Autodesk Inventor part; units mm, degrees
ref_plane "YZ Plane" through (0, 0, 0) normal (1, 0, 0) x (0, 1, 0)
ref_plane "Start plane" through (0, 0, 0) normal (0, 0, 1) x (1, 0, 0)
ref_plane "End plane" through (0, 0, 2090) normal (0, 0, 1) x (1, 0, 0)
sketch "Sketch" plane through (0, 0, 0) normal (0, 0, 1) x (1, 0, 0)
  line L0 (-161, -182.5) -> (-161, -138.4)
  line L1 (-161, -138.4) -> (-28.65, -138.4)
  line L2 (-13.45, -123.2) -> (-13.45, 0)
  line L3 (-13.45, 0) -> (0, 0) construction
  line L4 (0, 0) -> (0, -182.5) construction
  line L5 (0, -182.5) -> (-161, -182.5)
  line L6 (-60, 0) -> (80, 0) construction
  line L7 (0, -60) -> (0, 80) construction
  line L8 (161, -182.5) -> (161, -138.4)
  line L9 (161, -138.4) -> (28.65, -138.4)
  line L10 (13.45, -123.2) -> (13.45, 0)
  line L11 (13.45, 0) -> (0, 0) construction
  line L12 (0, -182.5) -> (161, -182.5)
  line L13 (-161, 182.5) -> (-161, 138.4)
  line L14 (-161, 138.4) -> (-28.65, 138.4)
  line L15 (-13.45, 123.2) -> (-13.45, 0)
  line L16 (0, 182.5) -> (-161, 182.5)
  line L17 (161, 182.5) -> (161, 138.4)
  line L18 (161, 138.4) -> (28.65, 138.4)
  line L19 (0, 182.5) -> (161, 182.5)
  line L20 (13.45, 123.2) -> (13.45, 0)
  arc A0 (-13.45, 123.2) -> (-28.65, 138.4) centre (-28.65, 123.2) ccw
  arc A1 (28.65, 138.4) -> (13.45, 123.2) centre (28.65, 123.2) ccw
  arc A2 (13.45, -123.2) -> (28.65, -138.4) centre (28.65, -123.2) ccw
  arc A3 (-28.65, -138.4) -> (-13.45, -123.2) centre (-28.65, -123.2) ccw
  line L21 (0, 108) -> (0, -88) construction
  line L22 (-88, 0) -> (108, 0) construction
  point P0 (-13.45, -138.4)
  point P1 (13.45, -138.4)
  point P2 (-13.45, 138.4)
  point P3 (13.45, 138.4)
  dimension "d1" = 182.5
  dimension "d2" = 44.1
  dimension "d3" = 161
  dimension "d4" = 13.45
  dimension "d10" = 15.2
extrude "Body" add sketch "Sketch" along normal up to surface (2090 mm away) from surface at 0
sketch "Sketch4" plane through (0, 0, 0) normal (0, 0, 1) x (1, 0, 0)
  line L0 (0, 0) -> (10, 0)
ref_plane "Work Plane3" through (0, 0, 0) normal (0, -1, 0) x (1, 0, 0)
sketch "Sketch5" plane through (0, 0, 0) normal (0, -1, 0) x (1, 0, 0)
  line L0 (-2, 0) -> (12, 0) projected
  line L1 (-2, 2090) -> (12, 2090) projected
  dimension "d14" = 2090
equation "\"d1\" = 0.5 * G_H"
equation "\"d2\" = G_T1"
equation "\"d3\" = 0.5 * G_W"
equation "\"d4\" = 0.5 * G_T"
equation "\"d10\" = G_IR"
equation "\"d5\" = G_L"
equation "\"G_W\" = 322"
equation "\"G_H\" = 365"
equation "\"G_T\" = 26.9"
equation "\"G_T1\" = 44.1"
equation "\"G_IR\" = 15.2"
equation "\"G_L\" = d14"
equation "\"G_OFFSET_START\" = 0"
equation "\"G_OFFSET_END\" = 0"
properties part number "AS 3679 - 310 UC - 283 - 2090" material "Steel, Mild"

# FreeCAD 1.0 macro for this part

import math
import FreeCAD as App
import Part
import Sketcher
from FreeCAD import Vector
Q = App.Units.Quantity

doc = App.newDocument("Part")
body = doc.addObject("PartDesign::Body", "Body")

sketch1 = body.newObject("Sketcher::SketchObject", "Sketch")
sketch1.AttachmentSupport = (doc.getObject("XY_Plane"), [""])
sketch1.MapMode = "FlatFace"
sketch1.addGeometry(Part.LineSegment(Vector(-161, -138, 0), Vector(-161, -182, 0)), False)
sketch1.addGeometry(Part.LineSegment(Vector(-161, -182, 0), Vector(161, -182, 0)), False)
sketch1.addGeometry(Part.LineSegment(Vector(161, -182, 0), Vector(161, -138, 0)), False)
sketch1.addGeometry(Part.LineSegment(Vector(161, -138, 0), Vector(29, -138, 0)), False)
sketch1.addGeometry(Part.ArcOfCircle(Part.Circle(Vector(29, -123, 0), Vector(0, 0, 1), 15), math.radians(180), math.radians(270)), False)
sketch1.addGeometry(Part.LineSegment(Vector(13, -123, 0), Vector(13, 123, 0)), False)
sketch1.addGeometry(Part.ArcOfCircle(Part.Circle(Vector(29, 123, 0), Vector(0, 0, 1), 15), math.radians(90), math.radians(180)), False)
sketch1.addGeometry(Part.LineSegment(Vector(29, 138, 0), Vector(161, 138, 0)), False)
sketch1.addGeometry(Part.LineSegment(Vector(161, 138, 0), Vector(161, 182, 0)), False)
sketch1.addGeometry(Part.LineSegment(Vector(161, 182, 0), Vector(-161, 182, 0)), False)
sketch1.addGeometry(Part.LineSegment(Vector(-161, 182, 0), Vector(-161, 138, 0)), False)
sketch1.addGeometry(Part.LineSegment(Vector(-161, 138, 0), Vector(-29, 138, 0)), False)
sketch1.addGeometry(Part.ArcOfCircle(Part.Circle(Vector(-29, 123, 0), Vector(0, 0, 1), 15), math.radians(0), math.radians(90)), False)
sketch1.addGeometry(Part.LineSegment(Vector(-13, 123, 0), Vector(-13, -123, 0)), False)
sketch1.addGeometry(Part.ArcOfCircle(Part.Circle(Vector(-29, -123, 0), Vector(0, 0, 1), 15), math.radians(-90), math.radians(0)), False)
sketch1.addGeometry(Part.LineSegment(Vector(-29, -138, 0), Vector(-161, -138, 0)), False)
sketch1.addConstraint(Sketcher.Constraint("Coincident", 0, 2, 1, 1))
sketch1.addConstraint(Sketcher.Constraint("Coincident", 1, 2, 2, 1))
sketch1.addConstraint(Sketcher.Constraint("Coincident", 2, 2, 3, 1))
sketch1.addConstraint(Sketcher.Constraint("Tangent", 3, 2, 4, 2))
sketch1.addConstraint(Sketcher.Constraint("Tangent", 4, 1, 5, 1))
sketch1.addConstraint(Sketcher.Constraint("Tangent", 5, 2, 6, 2))
sketch1.addConstraint(Sketcher.Constraint("Tangent", 6, 1, 7, 1))
sketch1.addConstraint(Sketcher.Constraint("Coincident", 7, 2, 8, 1))
sketch1.addConstraint(Sketcher.Constraint("Coincident", 8, 2, 9, 1))
sketch1.addConstraint(Sketcher.Constraint("Coincident", 9, 2, 10, 1))
sketch1.addConstraint(Sketcher.Constraint("Coincident", 10, 2, 11, 1))
sketch1.addConstraint(Sketcher.Constraint("Tangent", 11, 2, 12, 2))
sketch1.addConstraint(Sketcher.Constraint("Tangent", 12, 1, 13, 1))
sketch1.addConstraint(Sketcher.Constraint("Tangent", 13, 2, 14, 2))
sketch1.addConstraint(Sketcher.Constraint("Tangent", 14, 1, 15, 1))
sketch1.addConstraint(Sketcher.Constraint("Coincident", 15, 2, 0, 1))
sketch1.addConstraint(Sketcher.Constraint("Vertical", 0))
sketch1.addConstraint(Sketcher.Constraint("Horizontal", 1))
sketch1.addConstraint(Sketcher.Constraint("Vertical", 2))
sketch1.addConstraint(Sketcher.Constraint("Horizontal", 3))
sketch1.addConstraint(Sketcher.Constraint("Vertical", 5))
sketch1.addConstraint(Sketcher.Constraint("Horizontal", 7))
sketch1.addConstraint(Sketcher.Constraint("Vertical", 8))
sketch1.addConstraint(Sketcher.Constraint("Horizontal", 9))
sketch1.addConstraint(Sketcher.Constraint("Vertical", 10))
sketch1.addConstraint(Sketcher.Constraint("Horizontal", 11))
sketch1.addConstraint(Sketcher.Constraint("Vertical", 13))
sketch1.addConstraint(Sketcher.Constraint("Horizontal", 15))
sketch1.addConstraint(Sketcher.Constraint("Equal", 4, 6))
sketch1.addConstraint(Sketcher.Constraint("Equal", 6, 12))
sketch1.addConstraint(Sketcher.Constraint("Equal", 12, 14))
sketch1.addConstraint(Sketcher.Constraint("Symmetric", 4, 3, 12, 3, -1, 1))
sketch1.addConstraint(Sketcher.Constraint("Symmetric", 0, 2, 8, 2, -1, 1))
sketch1.addConstraint(Sketcher.Constraint("Symmetric", 7, 2, 10, 2, -2))
sketch1.addConstraint(Sketcher.Constraint("Symmetric", 2, 2, 15, 2, -2))
sketch1.addConstraint(Sketcher.Constraint("Radius", 4, Q("15.2 mm")))
sketch1.addConstraint(Sketcher.Constraint("DistanceY", 0, 2, 0, 1, Q("44.1 mm")))
sketch1.addConstraint(Sketcher.Constraint("DistanceX", 0, 2, -1, 1, Q("161 mm")))
sketch1.addConstraint(Sketcher.Constraint("DistanceY", 0, 2, -1, 1, Q("182.5 mm")))
sketch1.addConstraint(Sketcher.Constraint("DistanceX", -1, 1, 4, 1, Q("13.45 mm")))
pad1 = body.newObject("PartDesign::Pad", "Pad")
pad1.Profile = sketch1
pad1.Length = 2090

doc.recompute()
